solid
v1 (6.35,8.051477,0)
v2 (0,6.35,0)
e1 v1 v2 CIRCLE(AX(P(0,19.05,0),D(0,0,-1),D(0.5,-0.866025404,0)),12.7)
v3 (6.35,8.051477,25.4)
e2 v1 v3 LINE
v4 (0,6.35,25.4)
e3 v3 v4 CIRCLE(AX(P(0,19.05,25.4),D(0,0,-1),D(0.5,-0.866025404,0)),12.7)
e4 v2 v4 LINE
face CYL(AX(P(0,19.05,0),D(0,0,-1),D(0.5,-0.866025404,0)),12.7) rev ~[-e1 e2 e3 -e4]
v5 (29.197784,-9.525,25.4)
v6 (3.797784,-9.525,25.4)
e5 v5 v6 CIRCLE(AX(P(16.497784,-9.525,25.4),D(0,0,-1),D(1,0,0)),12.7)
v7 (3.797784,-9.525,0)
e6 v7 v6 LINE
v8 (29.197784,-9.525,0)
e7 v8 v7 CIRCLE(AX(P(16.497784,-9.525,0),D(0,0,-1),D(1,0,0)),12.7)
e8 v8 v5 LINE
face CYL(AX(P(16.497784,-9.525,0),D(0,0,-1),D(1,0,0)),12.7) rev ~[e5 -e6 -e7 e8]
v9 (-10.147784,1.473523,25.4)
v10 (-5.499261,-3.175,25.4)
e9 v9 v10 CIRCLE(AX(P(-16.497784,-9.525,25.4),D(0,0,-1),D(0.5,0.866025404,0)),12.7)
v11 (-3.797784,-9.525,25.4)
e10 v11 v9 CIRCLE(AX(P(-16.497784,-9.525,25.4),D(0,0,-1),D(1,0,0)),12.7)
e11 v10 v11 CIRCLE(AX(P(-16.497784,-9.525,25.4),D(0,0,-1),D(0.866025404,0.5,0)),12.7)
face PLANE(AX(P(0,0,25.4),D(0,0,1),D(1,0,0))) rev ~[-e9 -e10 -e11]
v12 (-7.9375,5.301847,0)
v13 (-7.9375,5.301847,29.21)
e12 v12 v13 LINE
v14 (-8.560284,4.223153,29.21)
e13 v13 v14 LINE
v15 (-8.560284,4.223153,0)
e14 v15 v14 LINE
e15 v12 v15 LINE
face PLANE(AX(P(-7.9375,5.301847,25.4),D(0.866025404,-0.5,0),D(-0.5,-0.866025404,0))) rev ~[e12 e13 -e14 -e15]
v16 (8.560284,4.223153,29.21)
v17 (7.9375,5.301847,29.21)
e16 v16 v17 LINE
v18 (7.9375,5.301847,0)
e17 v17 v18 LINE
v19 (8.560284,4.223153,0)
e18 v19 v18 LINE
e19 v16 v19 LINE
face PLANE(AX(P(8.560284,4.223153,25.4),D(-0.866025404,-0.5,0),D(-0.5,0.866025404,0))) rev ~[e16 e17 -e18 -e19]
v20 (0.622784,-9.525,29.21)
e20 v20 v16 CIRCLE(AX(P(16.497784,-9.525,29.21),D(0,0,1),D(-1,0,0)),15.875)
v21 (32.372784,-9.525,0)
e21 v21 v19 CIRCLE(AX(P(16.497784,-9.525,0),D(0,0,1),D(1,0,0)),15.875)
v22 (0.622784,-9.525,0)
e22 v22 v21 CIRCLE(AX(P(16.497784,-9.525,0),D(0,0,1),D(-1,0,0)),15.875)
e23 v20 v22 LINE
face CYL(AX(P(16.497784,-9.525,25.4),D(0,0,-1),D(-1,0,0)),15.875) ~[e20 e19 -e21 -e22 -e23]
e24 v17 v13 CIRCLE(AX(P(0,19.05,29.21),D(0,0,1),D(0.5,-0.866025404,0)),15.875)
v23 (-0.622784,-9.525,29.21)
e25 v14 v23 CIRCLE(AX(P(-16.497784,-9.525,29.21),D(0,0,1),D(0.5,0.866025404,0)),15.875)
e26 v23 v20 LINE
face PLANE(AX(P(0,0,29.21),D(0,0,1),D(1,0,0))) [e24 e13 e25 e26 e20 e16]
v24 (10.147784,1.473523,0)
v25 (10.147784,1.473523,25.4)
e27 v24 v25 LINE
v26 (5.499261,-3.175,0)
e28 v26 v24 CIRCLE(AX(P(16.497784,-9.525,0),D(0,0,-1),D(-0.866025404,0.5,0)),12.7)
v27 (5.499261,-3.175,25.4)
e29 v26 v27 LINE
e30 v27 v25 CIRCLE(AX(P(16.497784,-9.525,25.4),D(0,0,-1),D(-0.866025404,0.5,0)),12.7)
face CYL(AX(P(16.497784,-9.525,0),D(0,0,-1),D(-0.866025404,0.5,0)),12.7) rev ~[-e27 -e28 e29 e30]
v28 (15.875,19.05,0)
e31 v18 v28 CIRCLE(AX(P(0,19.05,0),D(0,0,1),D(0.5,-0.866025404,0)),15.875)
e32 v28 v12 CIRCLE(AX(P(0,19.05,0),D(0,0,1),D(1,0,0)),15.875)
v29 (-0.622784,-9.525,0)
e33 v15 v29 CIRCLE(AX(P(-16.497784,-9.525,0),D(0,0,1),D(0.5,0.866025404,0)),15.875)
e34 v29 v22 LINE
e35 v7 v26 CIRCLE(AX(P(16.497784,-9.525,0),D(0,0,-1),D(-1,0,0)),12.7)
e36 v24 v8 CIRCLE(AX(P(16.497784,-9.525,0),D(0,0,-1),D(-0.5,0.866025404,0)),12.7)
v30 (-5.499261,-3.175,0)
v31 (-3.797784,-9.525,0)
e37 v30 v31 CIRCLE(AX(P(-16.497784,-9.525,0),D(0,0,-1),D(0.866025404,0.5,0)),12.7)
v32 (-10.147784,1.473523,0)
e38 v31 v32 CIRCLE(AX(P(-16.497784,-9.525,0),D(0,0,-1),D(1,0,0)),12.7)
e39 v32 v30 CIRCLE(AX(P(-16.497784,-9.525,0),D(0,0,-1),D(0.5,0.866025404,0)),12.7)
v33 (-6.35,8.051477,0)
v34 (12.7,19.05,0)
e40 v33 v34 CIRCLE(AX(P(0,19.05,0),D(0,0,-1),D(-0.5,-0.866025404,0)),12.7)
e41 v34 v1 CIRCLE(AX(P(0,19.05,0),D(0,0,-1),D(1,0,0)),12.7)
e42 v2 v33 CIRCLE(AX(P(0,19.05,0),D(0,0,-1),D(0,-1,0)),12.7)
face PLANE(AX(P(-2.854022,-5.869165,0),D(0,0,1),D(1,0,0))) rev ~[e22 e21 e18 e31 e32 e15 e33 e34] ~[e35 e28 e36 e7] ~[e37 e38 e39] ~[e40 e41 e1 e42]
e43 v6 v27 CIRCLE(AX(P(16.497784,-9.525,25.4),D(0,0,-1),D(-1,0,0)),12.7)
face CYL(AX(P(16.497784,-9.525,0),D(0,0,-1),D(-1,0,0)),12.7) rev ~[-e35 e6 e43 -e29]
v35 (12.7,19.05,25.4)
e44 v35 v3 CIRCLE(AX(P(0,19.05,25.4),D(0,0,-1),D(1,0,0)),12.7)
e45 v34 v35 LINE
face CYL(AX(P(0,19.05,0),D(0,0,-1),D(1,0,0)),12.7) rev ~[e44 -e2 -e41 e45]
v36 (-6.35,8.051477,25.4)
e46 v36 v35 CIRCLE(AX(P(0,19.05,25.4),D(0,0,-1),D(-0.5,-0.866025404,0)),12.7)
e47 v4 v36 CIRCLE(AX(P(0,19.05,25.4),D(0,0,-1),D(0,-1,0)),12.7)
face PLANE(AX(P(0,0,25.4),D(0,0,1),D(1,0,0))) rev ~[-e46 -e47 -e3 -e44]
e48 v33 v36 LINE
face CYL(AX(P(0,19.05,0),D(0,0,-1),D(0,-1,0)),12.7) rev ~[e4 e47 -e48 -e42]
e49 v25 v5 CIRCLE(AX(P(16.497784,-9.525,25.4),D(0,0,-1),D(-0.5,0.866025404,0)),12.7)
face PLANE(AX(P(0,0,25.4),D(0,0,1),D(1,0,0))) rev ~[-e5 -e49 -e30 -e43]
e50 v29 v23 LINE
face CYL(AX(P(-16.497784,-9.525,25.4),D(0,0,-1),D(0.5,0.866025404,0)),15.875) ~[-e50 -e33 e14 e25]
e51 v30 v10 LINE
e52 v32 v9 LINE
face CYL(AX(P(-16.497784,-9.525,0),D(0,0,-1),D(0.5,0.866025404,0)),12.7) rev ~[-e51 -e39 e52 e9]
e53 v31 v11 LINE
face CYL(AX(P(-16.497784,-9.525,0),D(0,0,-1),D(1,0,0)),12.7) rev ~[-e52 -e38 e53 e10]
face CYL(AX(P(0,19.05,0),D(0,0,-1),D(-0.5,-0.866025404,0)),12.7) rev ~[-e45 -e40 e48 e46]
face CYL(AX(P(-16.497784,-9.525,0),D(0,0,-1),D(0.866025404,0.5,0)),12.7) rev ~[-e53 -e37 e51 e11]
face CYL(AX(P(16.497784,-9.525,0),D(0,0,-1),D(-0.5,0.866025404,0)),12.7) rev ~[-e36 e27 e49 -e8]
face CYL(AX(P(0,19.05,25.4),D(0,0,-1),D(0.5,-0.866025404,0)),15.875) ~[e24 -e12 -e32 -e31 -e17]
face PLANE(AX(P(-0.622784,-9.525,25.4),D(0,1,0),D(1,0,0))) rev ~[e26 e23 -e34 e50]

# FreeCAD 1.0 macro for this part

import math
import FreeCAD as App
import Part
import Sketcher

V = App.Vector
Q = App.Units.Quantity

doc = App.newDocument("Part")
params = doc.addObject("Spreadsheet::Sheet", "Params")
for row, (alias, value) in enumerate([
    ("sketch1_radius", "0.5 in"),
    ("sketch1_radius2", "0.625 in"),
    ("pad1_length", "1 in"),
    ("sketch2_radius", "0.625 in"),
    ("pad2_length", "0.15 in"),
], start=1):
    params.set(f"A{row}", alias)
    params.set(f"B{row}", "=" + value)
    params.setAlias(f"B{row}", alias)

body = doc.addObject("PartDesign::Body", "Body")

# Sketch on XY plane
sketch1 = body.newObject("Sketcher::SketchObject", "Sketch")
sketch1.AttachmentSupport = (doc.getObject("XY_Plane"), [""])
sketch1.MapMode = "FlatFace"
sketch1.addGeometry([
    Part.ArcOfCircle(Part.Circle(V(16.5, -9.5, 0), V(0, 0, 1), 15.9), math.radians(180), math.radians(360)),  # 0
    Part.ArcOfCircle(Part.Circle(V(16.5, -9.5, 0), V(0, 0, 1), 15.9), math.radians(0), math.radians(120)),  # 1
    Part.LineSegment(V(8.6, 4.2, 0), V(7.9, 5.3, 0)),  # 2
    Part.ArcOfCircle(Part.Circle(V(0, 19.1, 0), V(0, 0, 1), 15.9), math.radians(-60), math.radians(0)),  # 3
    Part.ArcOfCircle(Part.Circle(V(0, 19.1, 0), V(0, 0, 1), 15.9), math.radians(0), math.radians(240)),  # 4
    Part.LineSegment(V(-7.9, 5.3, 0), V(-8.6, 4.2, 0)),  # 5
    Part.ArcOfCircle(Part.Circle(V(-16.5, -9.5, 0), V(0, 0, 1), 15.9), math.radians(60), math.radians(360)),  # 6
    Part.LineSegment(V(-0.6, -9.5, 0), V(0.6, -9.5, 0)),  # 7
    Part.ArcOfCircle(Part.Circle(V(-16.5, -9.5, 0), V(0, 0, 1), 12.7), math.radians(30), math.radians(60)),  # 8
    Part.ArcOfCircle(Part.Circle(V(-16.5, -9.5, 0), V(0, 0, 1), 12.7), math.radians(0), math.radians(30)),  # 9
    Part.ArcOfCircle(Part.Circle(V(-16.5, -9.5, 0), V(0, 0, 1), 12.7), math.radians(60), math.radians(360)),  # 10
    Part.ArcOfCircle(Part.Circle(V(0, 19.1, 0), V(0, 0, 1), 12.7), math.radians(-60), math.radians(0)),  # 11
    Part.ArcOfCircle(Part.Circle(V(0, 19.1, 0), V(0, 0, 1), 12.7), math.radians(-90), math.radians(-60)),  # 12
    Part.ArcOfCircle(Part.Circle(V(0, 19.1, 0), V(0, 0, 1), 12.7), math.radians(-120), math.radians(-90)),  # 13
    Part.ArcOfCircle(Part.Circle(V(0, 19.1, 0), V(0, 0, 1), 12.7), math.radians(0), math.radians(240)),  # 14
    Part.ArcOfCircle(Part.Circle(V(16.5, -9.5, 0), V(0, 0, 1), 12.7), math.radians(180), math.radians(360)),  # 15
    Part.ArcOfCircle(Part.Circle(V(16.5, -9.5, 0), V(0, 0, 1), 12.7), math.radians(150), math.radians(180)),  # 16
    Part.ArcOfCircle(Part.Circle(V(16.5, -9.5, 0), V(0, 0, 1), 12.7), math.radians(120), math.radians(150)),  # 17
    Part.ArcOfCircle(Part.Circle(V(16.5, -9.5, 0), V(0, 0, 1), 12.7), math.radians(0), math.radians(120)),  # 18
], False)
sketch1.addConstraint([
    Sketcher.Constraint("Tangent", 0, 2, 1, 1),
    Sketcher.Constraint("Coincident", 1, 2, 2, 1),
    Sketcher.Constraint("Coincident", 2, 2, 3, 1),
    Sketcher.Constraint("Tangent", 3, 2, 4, 1),
    Sketcher.Constraint("Coincident", 4, 2, 5, 1),
    Sketcher.Constraint("Coincident", 5, 2, 6, 1),
    Sketcher.Constraint("Coincident", 6, 2, 7, 1),
    Sketcher.Constraint("Coincident", 7, 2, 0, 1),
    Sketcher.Constraint("Tangent", 8, 1, 9, 2),
    Sketcher.Constraint("Tangent", 9, 1, 10, 2),
    Sketcher.Constraint("Tangent", 10, 1, 8, 2),
    Sketcher.Constraint("Tangent", 11, 1, 12, 2),
    Sketcher.Constraint("Tangent", 12, 1, 13, 2),
    Sketcher.Constraint("Tangent", 13, 1, 14, 2),
    Sketcher.Constraint("Tangent", 14, 1, 11, 2),
    Sketcher.Constraint("Tangent", 15, 1, 16, 2),
    Sketcher.Constraint("Tangent", 16, 1, 17, 2),
    Sketcher.Constraint("Tangent", 17, 1, 18, 2),
    Sketcher.Constraint("Tangent", 18, 1, 15, 2),
    Sketcher.Constraint("Horizontal", 7),
    Sketcher.Constraint("Coincident", 8, 3, 6, 3),
    Sketcher.Constraint("Coincident", 11, 3, 3, 3),
    Sketcher.Constraint("Coincident", 15, 3, 0, 3),
    Sketcher.Constraint("Equal", 0, 1),
    Sketcher.Constraint("Equal", 1, 3),
    Sketcher.Constraint("Equal", 3, 4),
    Sketcher.Constraint("Equal", 4, 6),
    Sketcher.Constraint("Equal", 10, 11),
    Sketcher.Constraint("Equal", 11, 12),
    Sketcher.Constraint("Equal", 14, 15),
    Sketcher.Constraint("Equal", 15, 16),
    Sketcher.Constraint("Symmetric", 0, 3, 6, 3, -2),
    Sketcher.Constraint("Symmetric", 2, 2, 4, 2, -2),
    Sketcher.Constraint("PointOnObject", 12, 1, -2),
    Sketcher.Constraint("Horizontal", 18, 3, 0, 2),
    Sketcher.Constraint("Horizontal", 14, 3, 3, 2),
    Sketcher.Constraint("Horizontal", 1, 2, 5, 2),
    Sketcher.Constraint("Horizontal", 0, 2, 6, 2),
    Sketcher.Constraint("Horizontal", 7, 2, 9, 1),
    Sketcher.Constraint("Horizontal", 11, 1, 13, 1),
    Sketcher.Constraint("Horizontal", 3, 2, 14, 1),
    Sketcher.Constraint("Horizontal", 9, 1, 15, 1),
    Sketcher.Constraint("Horizontal", 8, 1, 16, 1),
    Sketcher.Constraint("Horizontal", 10, 1, 17, 1),
    Sketcher.Constraint("Horizontal", 15, 1, 18, 1),
    Sketcher.Constraint("Radius", 8, Q("0.5 in")),
    Sketcher.Constraint("Angle", 2, Q("120 deg")),
    Sketcher.Constraint("Radius", 0, Q("0.625 in")),
    Sketcher.Constraint("DistanceY", -1, 1, 3, 3, Q("0.75 in")),
    Sketcher.Constraint("DistanceX", -1, 1, 11, 1, Q("0.25 in")),
    Sketcher.Constraint("DistanceY", 6, 2, 8, 1, Q("0.25 in")),
    Sketcher.Constraint("DistanceX", 10, 1, 9, 1, Q("0.25 in")),
    Sketcher.Constraint("DistanceY", 0, 3, -1, 1, Q("0.375 in")),
    Sketcher.Constraint("DistanceX", -1, 1, 2, 2, Q("0.3125 in")),
    Sketcher.Constraint("DistanceX", 1, 2, 0, 3, Q("0.3125 in")),
])
sketch1.setExpression("Constraints[45]", "Params.sketch1_radius")
sketch1.setExpression("Constraints[47]", "Params.sketch1_radius2")
pad1 = body.newObject("PartDesign::Pad", "Pad")
pad1.Profile = sketch1
pad1.setExpression("Length", "Params.pad1_length")

# Sketch on XY plane
sketch2 = body.newObject("Sketcher::SketchObject", "Sketch001")
sketch2.AttachmentSupport = (doc.getObject("XY_Plane"), [""])
sketch2.MapMode = "FlatFace"
sketch2.AttachmentOffset = App.Placement(V(0, 0, 1 * 25.4), App.Rotation())
sketch2.addGeometry([
    Part.ArcOfCircle(Part.Circle(V(0, 19.1, 0), V(0, 0, 1), 15.9), math.radians(-60), math.radians(240)),  # 0
    Part.LineSegment(V(-7.9, 5.3, 0), V(-8.6, 4.2, 0)),  # 1
    Part.ArcOfCircle(Part.Circle(V(-16.5, -9.5, 0), V(0, 0, 1), 15.9), math.radians(60), math.radians(360)),  # 2
    Part.LineSegment(V(-0.6, -9.5, 0), V(0.6, -9.5, 0)),  # 3
    Part.ArcOfCircle(Part.Circle(V(16.5, -9.5, 0), V(0, 0, 1), 15.9), math.radians(180), math.radians(480)),  # 4
    Part.LineSegment(V(8.6, 4.2, 0), V(7.9, 5.3, 0)),  # 5
], False)
sketch2.addConstraint([
    Sketcher.Constraint("Coincident", 0, 2, 1, 1),
    Sketcher.Constraint("Coincident", 1, 2, 2, 1),
    Sketcher.Constraint("Coincident", 2, 2, 3, 1),
    Sketcher.Constraint("Coincident", 3, 2, 4, 1),
    Sketcher.Constraint("Coincident", 4, 2, 5, 1),
    Sketcher.Constraint("Coincident", 5, 2, 0, 1),
    Sketcher.Constraint("Horizontal", 3),
    Sketcher.Constraint("Equal", 0, 2),
    Sketcher.Constraint("Equal", 2, 4),
    Sketcher.Constraint("Symmetric", 2, 3, 4, 3, -2),
    Sketcher.Constraint("Symmetric", 0, 2, 5, 2, -2),
    Sketcher.Constraint("Horizontal", 4, 3, 2, 2),
    Sketcher.Constraint("Horizontal", 1, 2, 4, 2),
    Sketcher.Constraint("Angle", 1, Q("-120 deg")),
    Sketcher.Constraint("Radius", 0, Q("0.625 in")),
    Sketcher.Constraint("DistanceY", -1, 1, 0, 3, Q("0.75 in")),
    Sketcher.Constraint("DistanceY", 2, 3, -1, 1, Q("0.375 in")),
    Sketcher.Constraint("DistanceX", 0, 2, -1, 1, Q("0.3125 in")),
    Sketcher.Constraint("DistanceX", 2, 3, 1, 2, Q("0.3125 in")),
])
sketch2.setExpression("Constraints[14]", "Params.sketch2_radius")
pad2 = body.newObject("PartDesign::Pad", "Pad001")
pad2.Profile = sketch2
pad2.setExpression("Length", "Params.pad2_length")

doc.recompute()
